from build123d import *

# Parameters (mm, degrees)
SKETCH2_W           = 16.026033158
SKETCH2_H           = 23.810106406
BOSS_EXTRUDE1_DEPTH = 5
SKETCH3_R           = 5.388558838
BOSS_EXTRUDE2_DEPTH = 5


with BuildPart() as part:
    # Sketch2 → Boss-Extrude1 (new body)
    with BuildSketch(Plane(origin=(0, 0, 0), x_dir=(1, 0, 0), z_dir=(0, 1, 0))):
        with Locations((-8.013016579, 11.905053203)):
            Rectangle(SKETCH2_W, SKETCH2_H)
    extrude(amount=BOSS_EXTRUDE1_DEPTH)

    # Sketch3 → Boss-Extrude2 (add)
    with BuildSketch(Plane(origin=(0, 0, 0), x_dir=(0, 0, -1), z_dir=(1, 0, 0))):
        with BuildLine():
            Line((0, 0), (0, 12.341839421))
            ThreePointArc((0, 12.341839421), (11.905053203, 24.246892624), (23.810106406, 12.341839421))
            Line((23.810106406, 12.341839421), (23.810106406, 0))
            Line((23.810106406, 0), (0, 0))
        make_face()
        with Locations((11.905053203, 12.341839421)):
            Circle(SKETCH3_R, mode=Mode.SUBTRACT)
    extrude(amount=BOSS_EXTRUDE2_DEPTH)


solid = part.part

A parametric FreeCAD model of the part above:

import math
import FreeCAD as App
import Part
import Sketcher

V = App.Vector


def add_polygon(sketch, points):
    """Adds a closed chain of lines whose ends are joined by coincident constraints."""
    first, n = sketch.GeometryCount, len(points)
    for a, b in zip(points, points[1:] + points[:1]):
        sketch.addGeometry(Part.LineSegment(App.Vector(*a, 0), App.Vector(*b, 0)), False)
    for i in range(n):
        sketch.addConstraint(Sketcher.Constraint("Coincident", first + i, 2, first + (i + 1) % n, 1))

doc = App.newDocument("Part")
body = doc.addObject("PartDesign::Body", "Body")

sketch1 = doc.addObject("Sketcher::SketchObject", "Sketch")
body.addObject(sketch1)
sketch1.AttachmentSupport = (doc.XZ_Plane, [""])
sketch1.MapMode = "FlatFace"
add_polygon(sketch1, [(-16, -24), (-16, 0), (0, 0), (0, -24)])
sketch1.addConstraint([
    Sketcher.Constraint("Vertical", 0),
    Sketcher.Constraint("Horizontal", 1),
    Sketcher.Constraint("Vertical", 2),
    Sketcher.Constraint("Horizontal", 3),
    Sketcher.Constraint("Coincident", 1, 2, -1, 1),
    Sketcher.Constraint("DistanceX", 1, 1, 1, 2, 16.026033),
    Sketcher.Constraint("DistanceY", 0, 1, 0, 2, 23.810106),
])
pad1 = doc.addObject("PartDesign::Pad", "Pad")
body.addObject(pad1)
pad1.Profile = sketch1
pad1.Length = 5
pad1.Reversed = True

sketch2 = doc.addObject("Sketcher::SketchObject", "Sketch001")
body.addObject(sketch2)
sketch2.AttachmentSupport = (doc.YZ_Plane, [""])
sketch2.MapMode = "FlatFace"
sketch2.addGeometry([
    Part.LineSegment(V(12, 0, 0), V(0, 0, 0)),
    Part.LineSegment(V(0, 0, 0), V(0, -24, 0)),
    Part.LineSegment(V(0, -24, 0), V(12, -24, 0)),
    Part.ArcOfCircle(Part.Circle(V(12, -12, 0), V(0, 0, 1), 12), math.radians(-90), math.radians(90)),
    Part.Circle(V(12, -12, 0), V(0, 0, 1), 5),
], False)
sketch2.addConstraint([
    Sketcher.Constraint("Coincident", 0, 2, 1, 1),
    Sketcher.Constraint("Coincident", 1, 2, 2, 1),
    Sketcher.Constraint("Tangent", 2, 2, 3, 1),
    Sketcher.Constraint("Tangent", 3, 2, 0, 1),
    Sketcher.Constraint("Horizontal", 0),
    Sketcher.Constraint("Vertical", 1),
    Sketcher.Constraint("Horizontal", 2),
    Sketcher.Constraint("Coincident", 0, 2, -1, 1),
    Sketcher.Constraint("Coincident", 4, 3, 3, 3),
    Sketcher.Constraint("Diameter", 4, 10.777118),
    Sketcher.Constraint("Radius", 3, 11.905053),
    Sketcher.Constraint("DistanceX", 0, 2, 0, 1, 12.341839),
])
pad2 = doc.addObject("PartDesign::Pad", "Pad001")
body.addObject(pad2)
pad2.Profile = sketch2
pad2.Length = 5

doc.recompute()
